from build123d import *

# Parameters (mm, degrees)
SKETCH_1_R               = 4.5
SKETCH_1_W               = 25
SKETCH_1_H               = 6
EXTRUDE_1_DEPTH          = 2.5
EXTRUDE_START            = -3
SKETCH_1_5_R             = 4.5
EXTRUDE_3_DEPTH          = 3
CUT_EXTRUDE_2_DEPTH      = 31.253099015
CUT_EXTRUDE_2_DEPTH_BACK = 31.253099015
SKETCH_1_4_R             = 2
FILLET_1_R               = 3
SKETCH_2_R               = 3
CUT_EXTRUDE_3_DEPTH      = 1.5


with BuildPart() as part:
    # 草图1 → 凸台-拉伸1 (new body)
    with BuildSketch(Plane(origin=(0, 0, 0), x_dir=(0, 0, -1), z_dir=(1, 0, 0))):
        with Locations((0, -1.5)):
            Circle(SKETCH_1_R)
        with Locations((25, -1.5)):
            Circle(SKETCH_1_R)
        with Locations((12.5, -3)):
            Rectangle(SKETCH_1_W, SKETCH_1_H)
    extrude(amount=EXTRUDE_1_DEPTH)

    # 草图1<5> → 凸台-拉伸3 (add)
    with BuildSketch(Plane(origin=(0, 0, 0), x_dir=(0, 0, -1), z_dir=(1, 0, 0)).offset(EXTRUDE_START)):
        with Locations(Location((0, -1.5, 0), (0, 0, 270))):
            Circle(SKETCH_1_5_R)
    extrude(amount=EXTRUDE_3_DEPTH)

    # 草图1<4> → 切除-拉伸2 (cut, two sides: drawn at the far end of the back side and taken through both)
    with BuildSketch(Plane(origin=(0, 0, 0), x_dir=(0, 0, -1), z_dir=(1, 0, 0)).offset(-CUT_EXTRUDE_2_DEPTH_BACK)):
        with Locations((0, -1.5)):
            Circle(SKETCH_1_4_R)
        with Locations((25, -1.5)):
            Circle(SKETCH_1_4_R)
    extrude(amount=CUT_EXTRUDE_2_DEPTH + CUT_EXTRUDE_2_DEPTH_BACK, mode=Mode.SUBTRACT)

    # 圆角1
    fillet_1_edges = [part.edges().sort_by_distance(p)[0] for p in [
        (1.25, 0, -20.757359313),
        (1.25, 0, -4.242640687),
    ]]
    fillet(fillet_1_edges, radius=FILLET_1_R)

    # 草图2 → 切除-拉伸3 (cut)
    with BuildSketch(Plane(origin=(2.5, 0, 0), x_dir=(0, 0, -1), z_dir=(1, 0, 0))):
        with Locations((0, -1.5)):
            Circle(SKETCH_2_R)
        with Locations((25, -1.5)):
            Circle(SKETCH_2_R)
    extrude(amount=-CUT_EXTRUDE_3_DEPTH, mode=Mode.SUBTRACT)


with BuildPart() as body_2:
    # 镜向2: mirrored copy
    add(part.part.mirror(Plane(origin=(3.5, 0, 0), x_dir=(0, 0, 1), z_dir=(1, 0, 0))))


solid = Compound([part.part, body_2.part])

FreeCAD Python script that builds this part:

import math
import FreeCAD as App
import Part
import Sketcher
from FreeCAD import Vector
Q = App.Units.Quantity


def edges_at(feature, points):
    """Names of the edges that pass closest to the given points."""
    edges = feature.Shape.Edges
    near = lambda p: min(range(len(edges)), key=lambda i: edges[i].distToShape(Part.Vertex(*p))[0])
    return sorted({f"Edge{near(p) + 1}" for p in points})

doc = App.newDocument("Part")
params = doc.addObject("Spreadsheet::Sheet", "Params")
for row, (alias, value) in enumerate([
    ("sketch1_radius", "4.5 mm"),
    ("sketch1_height", "25 mm"),
    ("pad1_length", "2.5 mm"),
    ("sketch2_diameter", "9 mm"),
    ("pad2_length", "3 mm"),
    ("sketch3_diameter", "4 mm"),
    ("fillet_radius", "3 mm"),
    ("sketch4_diameter", "6 mm"),
    ("pocket2_length", "1.5 mm"),
], start=1):
    params.set(f"A{row}", alias)
    params.set(f"B{row}", "=" + value)
    params.setAlias(f"B{row}", alias)

body = doc.addObject("PartDesign::Body", "Body")

# Sketch on YZ plane
sketch1 = body.newObject("Sketcher::SketchObject", "Sketch")
sketch1.AttachmentSupport = (doc.getObject("YZ_Plane"), [""])
sketch1.MapMode = "FlatFace"
sketch1.addGeometry([
    Part.ArcOfCircle(Part.Circle(Vector(-1.5, 0, 0), Vector(0, 0, 1), 4.5), math.radians(-71), math.radians(180)),
    Part.LineSegment(Vector(-6, 0, 0), Vector(-6, -25, 0)),
    Part.ArcOfCircle(Part.Circle(Vector(-1.5, -25, 0), Vector(0, 0, 1), 4.5), math.radians(180), math.radians(431)),
    Part.LineSegment(Vector(0, -20.8, 0), Vector(0, -4.2, 0)),
], False)
sketch1.addConstraint([
    Sketcher.Constraint("Tangent", 0, 2, 1, 1),
    Sketcher.Constraint("Tangent", 1, 2, 2, 1),
    Sketcher.Constraint("Coincident", 2, 2, 3, 1),
    Sketcher.Constraint("Coincident", 3, 2, 0, 1),
    Sketcher.Constraint("Vertical", 1),
    Sketcher.Constraint("Vertical", 3),
    Sketcher.Constraint("Equal", 0, 2),
    Sketcher.Constraint("PointOnObject", 0, 3, -1),
    Sketcher.Constraint("PointOnObject", 2, 2, -2),
    Sketcher.Constraint("Radius", 0, Q("4.5 mm")),
    Sketcher.Constraint("DistanceY", 1, 2, 1, 1, Q("25 mm")),
    Sketcher.Constraint("DistanceX", 0, 2, -1, 1, Q("6 mm")),
])
sketch1.setExpression("Constraints[9]", "Params.sketch1_radius")
sketch1.setExpression("Constraints[10]", "Params.sketch1_height")
pad1 = body.newObject("PartDesign::Pad", "Pad")
pad1.Profile = sketch1
pad1.setExpression("Length", "Params.pad1_length")

# Sketch on YZ plane
sketch2 = body.newObject("Sketcher::SketchObject", "Sketch001")
sketch2.AttachmentSupport = (doc.getObject("YZ_Plane"), [""])
sketch2.MapMode = "FlatFace"
sketch2.AttachmentOffset = App.Placement(Vector(0, 0, -3), App.Rotation())
sketch2.addGeometry(Part.Circle(Vector(-1.5, 0, 0), Vector(0, 0, 1), 4.5), False)
sketch2.addConstraint([
    Sketcher.Constraint("PointOnObject", 0, 3, -1),
    Sketcher.Constraint("Diameter", 0, Q("9 mm")),
    Sketcher.Constraint("DistanceX", 0, 3, -1, 1, Q("1.5 mm")),
])
sketch2.setExpression("Constraints[1]", "Params.sketch2_diameter")
pad2 = body.newObject("PartDesign::Pad", "Pad001")
pad2.Profile = sketch2
pad2.setExpression("Length", "Params.pad2_length")

# Sketch on YZ plane
sketch3 = body.newObject("Sketcher::SketchObject", "Sketch002")
sketch3.AttachmentSupport = (doc.getObject("YZ_Plane"), [""])
sketch3.MapMode = "FlatFace"
sketch3.addGeometry([
    Part.Circle(Vector(-1.5, 0, 0), Vector(0, 0, 1), 2),
    Part.Circle(Vector(-1.5, -25, 0), Vector(0, 0, 1), 2),
], False)
sketch3.addConstraint([
    Sketcher.Constraint("Equal", 0, 1),
    Sketcher.Constraint("PointOnObject", 0, 3, -1),
    Sketcher.Constraint("Vertical", 0, 3, 1, 3),
    Sketcher.Constraint("Diameter", 0, Q("4 mm")),
    Sketcher.Constraint("DistanceY", 1, 3, -1, 1, Q("25 mm")),
    Sketcher.Constraint("DistanceX", 0, 3, -1, 1, Q("1.5 mm")),
])
sketch3.setExpression("Constraints[3]", "Params.sketch3_diameter")
pocket1 = body.newObject("PartDesign::Pocket", "Pocket")
pocket1.Profile = sketch3
pocket1.Type = "ThroughAll"
pocket1.Midplane = True
doc.recompute()

fillet = body.newObject("PartDesign::Fillet", "Fillet")
fillet.Base = (pocket1, edges_at(pocket1, [(1.25, 0, -20.757), (1.25, 0, -4.243)]))
fillet.setExpression("Radius", "Params.fillet_radius")

# Sketch on YZ plane
sketch4 = body.newObject("Sketcher::SketchObject", "Sketch003")
sketch4.AttachmentSupport = (doc.getObject("YZ_Plane"), [""])
sketch4.MapMode = "FlatFace"
sketch4.AttachmentOffset = App.Placement(Vector(0, 0, 2.5), App.Rotation())
sketch4.addGeometry([
    Part.Circle(Vector(-1.5, 0, 0), Vector(0, 0, 1), 3),
    Part.Circle(Vector(-1.5, -25, 0), Vector(0, 0, 1), 3),
], False)
sketch4.addConstraint([
    Sketcher.Constraint("Equal", 0, 1),
    Sketcher.Constraint("PointOnObject", 0, 3, -1),
    Sketcher.Constraint("Vertical", 0, 3, 1, 3),
    Sketcher.Constraint("Diameter", 0, Q("6 mm")),
    Sketcher.Constraint("DistanceY", 1, 3, -1, 1, Q("25 mm")),
    Sketcher.Constraint("DistanceX", 0, 3, -1, 1, Q("1.5 mm")),
])
sketch4.setExpression("Constraints[3]", "Params.sketch4_diameter")
pocket2 = body.newObject("PartDesign::Pocket", "Pocket001")
pocket2.Profile = sketch4
pocket2.setExpression("Length", "Params.pocket2_length")
body2 = doc.addObject("PartDesign::Body", "Body001")
doc.recompute()

mirroring = doc.addObject("Part::Mirroring", "Mirroring")
mirroring.Source = body
mirroring.Base = Vector(3.5, 0, 0)
mirroring.Normal = Vector(1, 0, 0)
body2.BaseFeature = mirroring
doc.recompute()
mirroring.Visibility = False

doc.recompute()
